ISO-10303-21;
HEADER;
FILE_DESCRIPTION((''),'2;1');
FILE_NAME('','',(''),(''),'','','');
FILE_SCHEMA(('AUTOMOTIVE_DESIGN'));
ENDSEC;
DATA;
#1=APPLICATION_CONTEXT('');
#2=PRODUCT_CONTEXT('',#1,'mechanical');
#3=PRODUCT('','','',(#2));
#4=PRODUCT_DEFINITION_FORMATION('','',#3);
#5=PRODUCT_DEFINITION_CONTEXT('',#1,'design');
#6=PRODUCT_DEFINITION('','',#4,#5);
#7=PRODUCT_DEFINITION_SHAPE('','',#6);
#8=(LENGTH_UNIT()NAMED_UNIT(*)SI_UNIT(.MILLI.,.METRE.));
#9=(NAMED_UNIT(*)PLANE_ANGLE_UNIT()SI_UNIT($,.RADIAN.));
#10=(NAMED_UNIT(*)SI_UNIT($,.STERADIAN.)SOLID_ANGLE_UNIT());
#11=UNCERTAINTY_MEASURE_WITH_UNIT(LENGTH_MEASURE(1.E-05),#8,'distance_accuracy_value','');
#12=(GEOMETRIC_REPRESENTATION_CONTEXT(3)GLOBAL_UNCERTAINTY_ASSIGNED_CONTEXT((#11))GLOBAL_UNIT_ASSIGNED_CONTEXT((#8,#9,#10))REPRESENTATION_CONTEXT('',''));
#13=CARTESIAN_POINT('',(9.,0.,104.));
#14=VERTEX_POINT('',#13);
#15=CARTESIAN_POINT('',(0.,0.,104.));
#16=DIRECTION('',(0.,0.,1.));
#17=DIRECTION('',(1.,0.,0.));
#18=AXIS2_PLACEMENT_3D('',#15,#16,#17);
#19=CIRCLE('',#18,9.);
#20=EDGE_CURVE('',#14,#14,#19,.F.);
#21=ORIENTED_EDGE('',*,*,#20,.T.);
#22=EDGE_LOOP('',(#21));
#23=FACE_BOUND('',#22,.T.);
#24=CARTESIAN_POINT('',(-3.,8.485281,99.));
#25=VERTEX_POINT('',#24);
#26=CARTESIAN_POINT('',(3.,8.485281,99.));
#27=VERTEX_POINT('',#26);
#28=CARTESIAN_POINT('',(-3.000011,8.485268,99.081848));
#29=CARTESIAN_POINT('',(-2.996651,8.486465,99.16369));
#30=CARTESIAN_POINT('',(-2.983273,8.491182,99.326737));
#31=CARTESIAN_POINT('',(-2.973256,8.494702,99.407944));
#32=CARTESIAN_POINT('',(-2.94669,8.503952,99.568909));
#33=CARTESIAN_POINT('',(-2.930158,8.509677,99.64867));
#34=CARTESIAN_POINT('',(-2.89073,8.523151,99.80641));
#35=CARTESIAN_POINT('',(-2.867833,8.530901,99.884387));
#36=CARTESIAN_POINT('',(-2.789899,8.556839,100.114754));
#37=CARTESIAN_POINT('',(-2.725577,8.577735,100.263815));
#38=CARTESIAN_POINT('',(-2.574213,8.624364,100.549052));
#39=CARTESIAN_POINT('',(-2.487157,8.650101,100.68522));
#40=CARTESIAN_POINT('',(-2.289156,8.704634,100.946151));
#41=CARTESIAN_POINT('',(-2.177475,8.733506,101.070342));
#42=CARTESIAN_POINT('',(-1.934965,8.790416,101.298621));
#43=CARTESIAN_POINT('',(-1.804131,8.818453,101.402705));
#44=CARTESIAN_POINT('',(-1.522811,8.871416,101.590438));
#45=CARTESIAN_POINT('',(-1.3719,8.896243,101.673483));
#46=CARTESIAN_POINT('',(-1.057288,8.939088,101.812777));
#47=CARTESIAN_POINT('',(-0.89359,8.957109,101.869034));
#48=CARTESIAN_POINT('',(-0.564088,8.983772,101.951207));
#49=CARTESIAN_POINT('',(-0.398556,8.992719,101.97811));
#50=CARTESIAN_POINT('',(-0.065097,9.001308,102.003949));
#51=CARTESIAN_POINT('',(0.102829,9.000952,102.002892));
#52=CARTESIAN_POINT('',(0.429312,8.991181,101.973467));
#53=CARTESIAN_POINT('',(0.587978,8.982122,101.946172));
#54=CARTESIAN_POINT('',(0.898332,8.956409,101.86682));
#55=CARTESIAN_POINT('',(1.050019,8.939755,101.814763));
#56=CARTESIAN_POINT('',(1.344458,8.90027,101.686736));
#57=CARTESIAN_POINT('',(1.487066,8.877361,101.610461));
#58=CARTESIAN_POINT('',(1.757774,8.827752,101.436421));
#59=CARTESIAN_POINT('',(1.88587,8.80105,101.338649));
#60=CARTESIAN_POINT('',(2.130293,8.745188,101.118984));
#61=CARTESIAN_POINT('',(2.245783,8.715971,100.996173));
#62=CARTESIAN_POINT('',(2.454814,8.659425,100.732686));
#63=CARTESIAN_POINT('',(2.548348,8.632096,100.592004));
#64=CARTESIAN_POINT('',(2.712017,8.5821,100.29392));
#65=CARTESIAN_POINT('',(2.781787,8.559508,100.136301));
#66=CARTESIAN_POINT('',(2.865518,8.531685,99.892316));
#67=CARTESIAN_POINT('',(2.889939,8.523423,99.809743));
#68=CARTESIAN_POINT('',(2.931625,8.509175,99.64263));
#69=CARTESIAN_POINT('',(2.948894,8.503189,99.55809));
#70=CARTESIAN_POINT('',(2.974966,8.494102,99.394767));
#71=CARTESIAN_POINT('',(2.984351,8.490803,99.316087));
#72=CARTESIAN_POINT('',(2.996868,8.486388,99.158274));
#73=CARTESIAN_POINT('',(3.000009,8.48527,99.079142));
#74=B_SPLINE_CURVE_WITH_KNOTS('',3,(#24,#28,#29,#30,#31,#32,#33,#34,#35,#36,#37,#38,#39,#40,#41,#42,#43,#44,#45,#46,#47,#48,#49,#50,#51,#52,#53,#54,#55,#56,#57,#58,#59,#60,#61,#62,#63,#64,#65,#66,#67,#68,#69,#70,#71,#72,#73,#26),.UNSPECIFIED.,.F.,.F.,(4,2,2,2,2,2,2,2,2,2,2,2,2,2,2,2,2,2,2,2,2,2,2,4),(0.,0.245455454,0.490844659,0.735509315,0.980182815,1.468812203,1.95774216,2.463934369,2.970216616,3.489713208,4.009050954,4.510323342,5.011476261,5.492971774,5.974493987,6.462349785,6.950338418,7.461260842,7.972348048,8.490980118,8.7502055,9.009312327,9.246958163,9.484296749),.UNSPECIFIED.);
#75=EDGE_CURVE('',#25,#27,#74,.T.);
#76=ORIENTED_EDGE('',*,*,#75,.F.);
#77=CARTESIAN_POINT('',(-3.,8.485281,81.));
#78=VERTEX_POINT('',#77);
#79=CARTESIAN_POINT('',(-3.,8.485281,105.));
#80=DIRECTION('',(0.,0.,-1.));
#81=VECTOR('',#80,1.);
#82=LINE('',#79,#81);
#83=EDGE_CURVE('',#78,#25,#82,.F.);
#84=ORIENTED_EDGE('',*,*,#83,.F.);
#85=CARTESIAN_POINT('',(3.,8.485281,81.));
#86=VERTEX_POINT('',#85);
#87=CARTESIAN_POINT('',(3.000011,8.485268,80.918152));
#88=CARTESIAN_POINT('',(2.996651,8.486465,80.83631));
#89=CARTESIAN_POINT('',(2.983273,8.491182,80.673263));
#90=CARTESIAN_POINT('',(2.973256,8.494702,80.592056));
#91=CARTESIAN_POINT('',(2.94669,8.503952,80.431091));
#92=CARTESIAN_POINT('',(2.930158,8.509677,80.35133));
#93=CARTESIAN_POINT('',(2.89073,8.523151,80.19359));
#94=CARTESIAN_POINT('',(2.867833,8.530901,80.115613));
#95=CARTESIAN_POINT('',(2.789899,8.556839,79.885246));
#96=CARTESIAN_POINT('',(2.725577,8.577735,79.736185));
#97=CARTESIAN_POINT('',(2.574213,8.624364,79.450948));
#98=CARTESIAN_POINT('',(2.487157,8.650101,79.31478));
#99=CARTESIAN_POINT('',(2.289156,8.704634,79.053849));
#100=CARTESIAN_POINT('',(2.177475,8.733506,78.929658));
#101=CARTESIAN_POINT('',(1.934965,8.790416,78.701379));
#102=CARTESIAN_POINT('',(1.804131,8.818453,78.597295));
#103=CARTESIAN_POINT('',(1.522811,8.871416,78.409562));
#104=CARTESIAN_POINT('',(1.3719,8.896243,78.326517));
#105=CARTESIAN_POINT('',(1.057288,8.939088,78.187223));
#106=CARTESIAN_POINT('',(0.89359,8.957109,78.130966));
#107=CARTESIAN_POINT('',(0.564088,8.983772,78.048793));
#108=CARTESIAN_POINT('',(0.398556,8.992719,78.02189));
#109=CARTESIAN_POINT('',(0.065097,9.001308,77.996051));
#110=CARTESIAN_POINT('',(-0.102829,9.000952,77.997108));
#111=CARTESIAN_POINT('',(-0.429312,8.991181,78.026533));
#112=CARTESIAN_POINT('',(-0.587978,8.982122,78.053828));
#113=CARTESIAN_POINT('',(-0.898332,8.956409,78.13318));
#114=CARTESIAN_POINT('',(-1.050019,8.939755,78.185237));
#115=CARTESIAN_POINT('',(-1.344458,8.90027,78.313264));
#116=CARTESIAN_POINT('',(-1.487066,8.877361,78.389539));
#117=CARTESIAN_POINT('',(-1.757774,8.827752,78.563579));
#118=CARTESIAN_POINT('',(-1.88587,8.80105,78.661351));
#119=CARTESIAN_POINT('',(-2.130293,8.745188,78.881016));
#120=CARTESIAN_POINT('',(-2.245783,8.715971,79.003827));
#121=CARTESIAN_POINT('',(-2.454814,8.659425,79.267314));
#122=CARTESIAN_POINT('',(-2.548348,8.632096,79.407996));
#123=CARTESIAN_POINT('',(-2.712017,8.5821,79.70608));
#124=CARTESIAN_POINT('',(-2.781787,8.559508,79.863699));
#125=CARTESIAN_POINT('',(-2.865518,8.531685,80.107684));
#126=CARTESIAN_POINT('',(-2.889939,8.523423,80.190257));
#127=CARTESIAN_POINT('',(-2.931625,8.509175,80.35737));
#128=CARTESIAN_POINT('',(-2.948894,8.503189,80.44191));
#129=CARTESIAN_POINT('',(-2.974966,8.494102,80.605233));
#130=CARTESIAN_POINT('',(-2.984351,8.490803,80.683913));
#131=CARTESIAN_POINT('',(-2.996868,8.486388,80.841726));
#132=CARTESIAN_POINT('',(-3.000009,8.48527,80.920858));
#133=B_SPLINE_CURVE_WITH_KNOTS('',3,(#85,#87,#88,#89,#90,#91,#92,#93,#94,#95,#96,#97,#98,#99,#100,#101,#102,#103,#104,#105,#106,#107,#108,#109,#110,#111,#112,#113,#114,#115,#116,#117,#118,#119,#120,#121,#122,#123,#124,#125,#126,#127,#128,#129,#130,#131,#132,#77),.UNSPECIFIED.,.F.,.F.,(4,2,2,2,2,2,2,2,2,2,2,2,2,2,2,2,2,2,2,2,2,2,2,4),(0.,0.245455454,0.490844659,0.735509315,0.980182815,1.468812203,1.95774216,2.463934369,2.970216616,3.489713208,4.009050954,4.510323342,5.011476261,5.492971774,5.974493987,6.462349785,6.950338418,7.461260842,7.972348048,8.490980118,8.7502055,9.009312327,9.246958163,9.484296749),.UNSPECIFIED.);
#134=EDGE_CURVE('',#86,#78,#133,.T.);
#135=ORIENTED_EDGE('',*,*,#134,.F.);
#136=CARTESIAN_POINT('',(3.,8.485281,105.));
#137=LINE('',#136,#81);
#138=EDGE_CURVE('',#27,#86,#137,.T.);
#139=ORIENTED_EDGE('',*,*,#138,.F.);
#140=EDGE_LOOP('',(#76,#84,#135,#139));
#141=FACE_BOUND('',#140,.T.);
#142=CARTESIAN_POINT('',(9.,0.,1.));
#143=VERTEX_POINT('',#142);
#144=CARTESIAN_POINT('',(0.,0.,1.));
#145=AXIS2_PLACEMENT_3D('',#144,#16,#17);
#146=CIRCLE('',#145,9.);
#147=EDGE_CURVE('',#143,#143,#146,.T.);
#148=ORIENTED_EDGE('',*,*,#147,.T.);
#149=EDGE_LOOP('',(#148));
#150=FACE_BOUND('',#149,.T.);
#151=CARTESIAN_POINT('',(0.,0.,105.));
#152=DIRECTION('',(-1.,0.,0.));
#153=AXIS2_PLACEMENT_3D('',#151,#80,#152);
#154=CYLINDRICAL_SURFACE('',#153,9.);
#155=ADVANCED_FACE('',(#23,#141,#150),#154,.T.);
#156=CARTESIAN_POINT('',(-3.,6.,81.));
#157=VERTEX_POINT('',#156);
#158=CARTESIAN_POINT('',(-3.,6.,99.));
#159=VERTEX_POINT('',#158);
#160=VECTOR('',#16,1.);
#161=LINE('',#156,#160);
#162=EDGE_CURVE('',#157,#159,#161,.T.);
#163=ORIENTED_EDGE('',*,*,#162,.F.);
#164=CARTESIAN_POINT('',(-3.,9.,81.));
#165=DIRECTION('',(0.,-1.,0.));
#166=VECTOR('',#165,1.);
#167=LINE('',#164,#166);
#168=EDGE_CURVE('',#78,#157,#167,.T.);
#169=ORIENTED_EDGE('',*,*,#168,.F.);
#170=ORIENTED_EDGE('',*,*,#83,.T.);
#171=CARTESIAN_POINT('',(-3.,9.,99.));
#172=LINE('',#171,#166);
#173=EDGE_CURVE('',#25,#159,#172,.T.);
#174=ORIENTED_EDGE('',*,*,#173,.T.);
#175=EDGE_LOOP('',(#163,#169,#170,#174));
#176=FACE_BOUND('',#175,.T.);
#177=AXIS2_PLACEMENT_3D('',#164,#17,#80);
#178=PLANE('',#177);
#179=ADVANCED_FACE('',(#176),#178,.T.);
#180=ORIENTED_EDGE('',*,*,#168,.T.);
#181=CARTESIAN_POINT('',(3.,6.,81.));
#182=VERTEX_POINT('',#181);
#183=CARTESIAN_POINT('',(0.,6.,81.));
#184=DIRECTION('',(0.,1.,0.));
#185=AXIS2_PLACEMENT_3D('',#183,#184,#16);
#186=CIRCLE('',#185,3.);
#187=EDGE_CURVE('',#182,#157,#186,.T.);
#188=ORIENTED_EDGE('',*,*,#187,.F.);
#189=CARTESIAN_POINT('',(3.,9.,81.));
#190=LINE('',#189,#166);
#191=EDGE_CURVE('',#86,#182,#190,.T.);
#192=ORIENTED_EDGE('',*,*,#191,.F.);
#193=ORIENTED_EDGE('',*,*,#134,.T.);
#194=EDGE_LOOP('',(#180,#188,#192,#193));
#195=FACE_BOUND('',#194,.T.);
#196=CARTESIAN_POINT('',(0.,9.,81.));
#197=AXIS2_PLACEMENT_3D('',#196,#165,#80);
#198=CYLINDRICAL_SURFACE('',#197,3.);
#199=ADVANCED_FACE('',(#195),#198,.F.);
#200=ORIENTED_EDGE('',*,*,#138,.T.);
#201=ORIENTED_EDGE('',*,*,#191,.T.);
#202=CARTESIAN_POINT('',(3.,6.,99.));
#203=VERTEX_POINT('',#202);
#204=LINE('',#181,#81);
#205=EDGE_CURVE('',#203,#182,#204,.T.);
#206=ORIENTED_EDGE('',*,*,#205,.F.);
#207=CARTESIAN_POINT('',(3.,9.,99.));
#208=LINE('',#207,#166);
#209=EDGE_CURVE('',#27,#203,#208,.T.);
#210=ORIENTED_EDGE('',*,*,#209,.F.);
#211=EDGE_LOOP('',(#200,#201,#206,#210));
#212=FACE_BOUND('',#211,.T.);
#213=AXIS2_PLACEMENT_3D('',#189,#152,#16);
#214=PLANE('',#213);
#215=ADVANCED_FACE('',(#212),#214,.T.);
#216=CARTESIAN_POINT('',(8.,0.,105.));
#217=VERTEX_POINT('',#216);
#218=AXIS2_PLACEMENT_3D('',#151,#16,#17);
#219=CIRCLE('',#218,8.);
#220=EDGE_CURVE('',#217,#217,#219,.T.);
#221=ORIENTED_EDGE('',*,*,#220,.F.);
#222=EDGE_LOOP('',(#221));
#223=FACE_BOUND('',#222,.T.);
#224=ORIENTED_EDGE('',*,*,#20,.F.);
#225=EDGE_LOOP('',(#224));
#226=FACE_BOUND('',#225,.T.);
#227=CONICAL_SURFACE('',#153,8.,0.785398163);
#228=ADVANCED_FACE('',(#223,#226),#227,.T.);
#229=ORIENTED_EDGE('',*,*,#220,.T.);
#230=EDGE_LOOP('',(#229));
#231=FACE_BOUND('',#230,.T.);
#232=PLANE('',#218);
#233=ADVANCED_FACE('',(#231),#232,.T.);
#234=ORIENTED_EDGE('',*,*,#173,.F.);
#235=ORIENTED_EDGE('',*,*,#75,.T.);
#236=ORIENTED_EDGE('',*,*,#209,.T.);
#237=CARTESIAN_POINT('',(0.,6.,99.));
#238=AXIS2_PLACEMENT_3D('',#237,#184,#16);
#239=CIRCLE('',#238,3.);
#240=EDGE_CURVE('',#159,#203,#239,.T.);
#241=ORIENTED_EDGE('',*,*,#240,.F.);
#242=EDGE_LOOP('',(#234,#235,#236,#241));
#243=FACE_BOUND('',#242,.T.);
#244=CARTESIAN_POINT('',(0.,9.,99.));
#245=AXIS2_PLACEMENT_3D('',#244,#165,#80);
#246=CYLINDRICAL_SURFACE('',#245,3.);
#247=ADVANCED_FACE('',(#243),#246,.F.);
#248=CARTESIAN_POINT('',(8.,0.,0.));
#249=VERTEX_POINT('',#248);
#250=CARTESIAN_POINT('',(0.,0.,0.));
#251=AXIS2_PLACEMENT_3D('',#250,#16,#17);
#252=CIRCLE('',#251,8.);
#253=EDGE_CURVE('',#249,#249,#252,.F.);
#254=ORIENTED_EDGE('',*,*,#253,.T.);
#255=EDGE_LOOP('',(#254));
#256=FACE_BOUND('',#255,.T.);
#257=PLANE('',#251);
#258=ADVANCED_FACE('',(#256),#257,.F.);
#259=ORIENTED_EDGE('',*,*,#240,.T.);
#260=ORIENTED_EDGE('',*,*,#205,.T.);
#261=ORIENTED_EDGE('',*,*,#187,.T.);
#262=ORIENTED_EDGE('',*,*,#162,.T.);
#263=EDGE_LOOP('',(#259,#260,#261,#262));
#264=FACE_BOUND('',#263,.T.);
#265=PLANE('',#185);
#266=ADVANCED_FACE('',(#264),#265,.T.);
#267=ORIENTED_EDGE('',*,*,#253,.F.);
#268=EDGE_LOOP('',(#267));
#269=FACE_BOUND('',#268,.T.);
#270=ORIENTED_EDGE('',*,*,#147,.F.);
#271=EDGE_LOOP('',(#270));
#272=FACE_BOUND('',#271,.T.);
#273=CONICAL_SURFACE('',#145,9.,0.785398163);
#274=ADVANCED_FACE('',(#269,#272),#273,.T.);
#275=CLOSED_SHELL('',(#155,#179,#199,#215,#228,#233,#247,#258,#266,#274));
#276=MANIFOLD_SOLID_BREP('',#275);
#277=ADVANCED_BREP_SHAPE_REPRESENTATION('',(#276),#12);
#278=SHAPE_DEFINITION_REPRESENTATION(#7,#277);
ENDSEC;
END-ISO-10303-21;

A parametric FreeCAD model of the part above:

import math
import FreeCAD as App
import Part
import Sketcher
Q = App.Units.Quantity


def edges_at(feature, points):
    """Names of the edges that pass closest to the given points."""
    edges = feature.Shape.Edges
    near = lambda p: min(range(len(edges)), key=lambda i: edges[i].distToShape(Part.Vertex(*p))[0])
    return sorted({f"Edge{near(p) + 1}" for p in points})

doc = App.newDocument("Part")
body = doc.addObject("PartDesign::Body", "Body")

sketch1 = body.newObject("Sketcher::SketchObject", "Sketch")
sketch1.AttachmentSupport = (doc.getObject("XY_Plane"), [""])
sketch1.MapMode = "FlatFace"
sketch1.addGeometry(Part.Circle(App.Vector(0, 0, 0), App.Vector(0, 0, 1), 9), False)
sketch1.addConstraint(Sketcher.Constraint("Coincident", 0, 3, -1, 1))
sketch1.addConstraint(Sketcher.Constraint("Diameter", 0, Q("18 mm")))
pad1 = body.newObject("PartDesign::Pad", "Pad")
pad1.Profile = sketch1
pad1.Length = 105
doc.recompute()

chamfer = body.newObject("PartDesign::Chamfer", "Chamfer")
chamfer.Base = (pad1, edges_at(pad1, [(-9, 0, 0), (-9, 0, 105)]))
chamfer.Size = 1

sketch2 = body.newObject("Sketcher::SketchObject", "Sketch001")
sketch2.AttachmentSupport = (doc.getObject("XZ_Plane"), [""])
sketch2.MapMode = "FlatFace"
sketch2.AttachmentOffset = App.Placement(App.Vector(0, 0, -6), App.Rotation())
sketch2.addGeometry(Part.LineSegment(App.Vector(3, 99, 0), App.Vector(3, 81, 0)), False)
sketch2.addGeometry(Part.ArcOfCircle(Part.Circle(App.Vector(0, 81, 0), App.Vector(0, 0, 1), 3), math.radians(180), math.radians(360)), False)
sketch2.addGeometry(Part.LineSegment(App.Vector(-3, 81, 0), App.Vector(-3, 99, 0)), False)
sketch2.addGeometry(Part.ArcOfCircle(Part.Circle(App.Vector(0, 99, 0), App.Vector(0, 0, 1), 3), math.radians(0), math.radians(180)), False)
sketch2.addConstraint(Sketcher.Constraint("Tangent", 0, 2, 1, 2))
sketch2.addConstraint(Sketcher.Constraint("Tangent", 1, 1, 2, 1))
sketch2.addConstraint(Sketcher.Constraint("Tangent", 2, 2, 3, 2))
sketch2.addConstraint(Sketcher.Constraint("Tangent", 3, 1, 0, 1))
sketch2.addConstraint(Sketcher.Constraint("Vertical", 0))
sketch2.addConstraint(Sketcher.Constraint("Vertical", 2))
sketch2.addConstraint(Sketcher.Constraint("PointOnObject", 1, 3, -2))
sketch2.addConstraint(Sketcher.Constraint("Radius", 1, Q("3 mm")))
sketch2.addConstraint(Sketcher.Constraint("DistanceY", 0, 2, 0, 1, Q("18 mm")))
sketch2.addConstraint(Sketcher.Constraint("DistanceY", -1, 1, 1, 3, Q("81 mm")))
pocket1 = body.newObject("PartDesign::Pocket", "Pocket")
pocket1.Profile = sketch2
pocket1.Type = "ThroughAll"

doc.recompute()
